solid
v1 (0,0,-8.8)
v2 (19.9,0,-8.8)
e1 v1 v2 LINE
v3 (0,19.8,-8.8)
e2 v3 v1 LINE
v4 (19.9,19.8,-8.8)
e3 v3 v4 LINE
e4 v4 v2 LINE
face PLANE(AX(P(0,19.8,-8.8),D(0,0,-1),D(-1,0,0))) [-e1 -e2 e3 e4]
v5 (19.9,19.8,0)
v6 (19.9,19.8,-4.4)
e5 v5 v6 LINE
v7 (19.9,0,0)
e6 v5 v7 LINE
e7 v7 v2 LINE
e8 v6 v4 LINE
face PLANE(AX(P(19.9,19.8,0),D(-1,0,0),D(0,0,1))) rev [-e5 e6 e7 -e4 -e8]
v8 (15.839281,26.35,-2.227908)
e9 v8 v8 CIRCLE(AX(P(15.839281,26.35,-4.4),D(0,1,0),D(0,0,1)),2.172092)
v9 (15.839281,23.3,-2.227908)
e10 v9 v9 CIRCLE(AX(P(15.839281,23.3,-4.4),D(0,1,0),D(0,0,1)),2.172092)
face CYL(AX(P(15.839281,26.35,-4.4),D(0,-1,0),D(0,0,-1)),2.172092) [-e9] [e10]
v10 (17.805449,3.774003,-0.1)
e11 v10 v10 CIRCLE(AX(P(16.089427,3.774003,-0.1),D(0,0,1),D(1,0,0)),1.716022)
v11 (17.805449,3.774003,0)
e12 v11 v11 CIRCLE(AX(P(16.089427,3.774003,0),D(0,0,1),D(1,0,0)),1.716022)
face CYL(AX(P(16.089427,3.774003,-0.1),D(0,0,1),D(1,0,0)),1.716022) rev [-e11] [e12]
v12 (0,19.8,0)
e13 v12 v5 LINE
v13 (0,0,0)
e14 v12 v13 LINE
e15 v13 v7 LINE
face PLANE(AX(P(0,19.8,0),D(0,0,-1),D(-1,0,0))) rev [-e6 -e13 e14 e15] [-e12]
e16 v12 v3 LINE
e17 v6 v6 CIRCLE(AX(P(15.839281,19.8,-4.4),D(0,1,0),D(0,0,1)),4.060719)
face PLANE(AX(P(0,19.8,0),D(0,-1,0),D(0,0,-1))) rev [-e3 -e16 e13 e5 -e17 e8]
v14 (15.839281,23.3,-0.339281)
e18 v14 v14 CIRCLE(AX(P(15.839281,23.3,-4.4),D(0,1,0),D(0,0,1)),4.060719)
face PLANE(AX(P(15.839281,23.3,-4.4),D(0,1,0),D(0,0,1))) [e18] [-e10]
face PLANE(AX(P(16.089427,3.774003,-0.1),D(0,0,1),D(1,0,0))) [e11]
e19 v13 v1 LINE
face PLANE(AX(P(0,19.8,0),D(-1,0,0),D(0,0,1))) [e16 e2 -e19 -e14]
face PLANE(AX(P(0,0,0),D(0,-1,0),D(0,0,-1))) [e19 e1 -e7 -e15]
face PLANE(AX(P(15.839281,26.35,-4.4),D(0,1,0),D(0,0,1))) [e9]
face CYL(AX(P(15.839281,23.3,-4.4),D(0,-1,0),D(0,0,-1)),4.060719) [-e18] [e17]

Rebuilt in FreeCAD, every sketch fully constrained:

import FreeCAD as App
import Part
import Sketcher
Q = App.Units.Quantity

doc = App.newDocument("Part")
body = doc.addObject("PartDesign::Body", "Body")

sketch1 = doc.addObject("Sketcher::SketchObject", "Sketch")
body.addObject(sketch1)
sketch1.AttachmentSupport = (doc.XZ_Plane, [""])
sketch1.MapMode = "FlatFace"
sketch1.addGeometry([
    Part.LineSegment(App.Vector(0, -9, 0), App.Vector(0, 0, 0)),
    Part.LineSegment(App.Vector(0, 0, 0), App.Vector(20, 0, 0)),
    Part.LineSegment(App.Vector(20, 0, 0), App.Vector(20, -9, 0)),
    Part.LineSegment(App.Vector(20, -9, 0), App.Vector(0, -9, 0)),
], False)
sketch1.addConstraint([
    Sketcher.Constraint("Coincident", 0, 2, 1, 1),
    Sketcher.Constraint("Coincident", 1, 2, 2, 1),
    Sketcher.Constraint("Coincident", 2, 2, 3, 1),
    Sketcher.Constraint("Coincident", 3, 2, 0, 1),
    Sketcher.Constraint("Vertical", 0),
    Sketcher.Constraint("Horizontal", 1),
    Sketcher.Constraint("Vertical", 2),
    Sketcher.Constraint("Horizontal", 3),
    Sketcher.Constraint("Coincident", 0, 2, -1, 1),
    Sketcher.Constraint("DistanceX", 1, 1, 1, 2, Q("19.9 mm")),
    Sketcher.Constraint("DistanceY", 0, 1, 0, 2, Q("8.8 mm")),
])
pad1 = doc.addObject("PartDesign::Pad", "Pad")
body.addObject(pad1)
pad1.Profile = sketch1
pad1.Length = 19.8
pad1.Reversed = True

sketch2 = doc.addObject("Sketcher::SketchObject", "Sketch001")
body.addObject(sketch2)
sketch2.AttachmentSupport = (doc.XZ_Plane, [""])
sketch2.MapMode = "FlatFace"
sketch2.AttachmentOffset = App.Placement(App.Vector(0, 0, -19.8), App.Rotation())
sketch2.addGeometry(Part.Circle(App.Vector(15.8, -4.4, 0), App.Vector(0, 0, 1), 2.2), False)
sketch2.addConstraint([
    Sketcher.Constraint("DistanceY", 0, 3, -1, 1, Q("4.4 mm")),
    Sketcher.Constraint("Diameter", 0, Q("4.344184 mm")),
    Sketcher.Constraint("DistanceX", -1, 1, 0, 3, Q("15.839281 mm")),
])
pad2 = doc.addObject("PartDesign::Pad", "Pad001")
body.addObject(pad2)
pad2.Profile = sketch2
pad2.Length = 6.55
pad2.Reversed = True

sketch3 = doc.addObject("Sketcher::SketchObject", "Sketch002")
body.addObject(sketch3)
sketch3.AttachmentSupport = (doc.XZ_Plane, [""])
sketch3.MapMode = "FlatFace"
sketch3.AttachmentOffset = App.Placement(App.Vector(0, 0, -19.8), App.Rotation())
sketch3.addGeometry(Part.Circle(App.Vector(15.8, -4.4, 0), App.Vector(0, 0, 1), 4.1), False)
sketch3.addConstraint([
    Sketcher.Constraint("DistanceY", 0, 3, -1, 1, Q("4.4 mm")),
    Sketcher.Constraint("Diameter", 0, Q("8.121438 mm")),
    Sketcher.Constraint("DistanceX", -1, 1, 0, 3, Q("15.839281 mm")),
])
pad3 = doc.addObject("PartDesign::Pad", "Pad002")
body.addObject(pad3)
pad3.Profile = sketch3
pad3.Length = 3.5
pad3.Reversed = True

sketch4 = doc.addObject("Sketcher::SketchObject", "Sketch003")
body.addObject(sketch4)
sketch4.AttachmentSupport = (doc.XY_Plane, [""])
sketch4.MapMode = "FlatFace"
sketch4.addGeometry(Part.Circle(App.Vector(16.1, 3.8, 0), App.Vector(0, 0, 1), 1.7), False)
sketch4.addConstraint([
    Sketcher.Constraint("Diameter", 0, Q("3.432044 mm")),
    Sketcher.Constraint("DistanceX", -1, 1, 0, 3, Q("16.089427 mm")),
    Sketcher.Constraint("DistanceY", -1, 1, 0, 3, Q("3.774003 mm")),
])
pocket1 = doc.addObject("PartDesign::Pocket", "Pocket")
body.addObject(pocket1)
pocket1.Profile = sketch4
pocket1.Length = 0.1

doc.recompute()
